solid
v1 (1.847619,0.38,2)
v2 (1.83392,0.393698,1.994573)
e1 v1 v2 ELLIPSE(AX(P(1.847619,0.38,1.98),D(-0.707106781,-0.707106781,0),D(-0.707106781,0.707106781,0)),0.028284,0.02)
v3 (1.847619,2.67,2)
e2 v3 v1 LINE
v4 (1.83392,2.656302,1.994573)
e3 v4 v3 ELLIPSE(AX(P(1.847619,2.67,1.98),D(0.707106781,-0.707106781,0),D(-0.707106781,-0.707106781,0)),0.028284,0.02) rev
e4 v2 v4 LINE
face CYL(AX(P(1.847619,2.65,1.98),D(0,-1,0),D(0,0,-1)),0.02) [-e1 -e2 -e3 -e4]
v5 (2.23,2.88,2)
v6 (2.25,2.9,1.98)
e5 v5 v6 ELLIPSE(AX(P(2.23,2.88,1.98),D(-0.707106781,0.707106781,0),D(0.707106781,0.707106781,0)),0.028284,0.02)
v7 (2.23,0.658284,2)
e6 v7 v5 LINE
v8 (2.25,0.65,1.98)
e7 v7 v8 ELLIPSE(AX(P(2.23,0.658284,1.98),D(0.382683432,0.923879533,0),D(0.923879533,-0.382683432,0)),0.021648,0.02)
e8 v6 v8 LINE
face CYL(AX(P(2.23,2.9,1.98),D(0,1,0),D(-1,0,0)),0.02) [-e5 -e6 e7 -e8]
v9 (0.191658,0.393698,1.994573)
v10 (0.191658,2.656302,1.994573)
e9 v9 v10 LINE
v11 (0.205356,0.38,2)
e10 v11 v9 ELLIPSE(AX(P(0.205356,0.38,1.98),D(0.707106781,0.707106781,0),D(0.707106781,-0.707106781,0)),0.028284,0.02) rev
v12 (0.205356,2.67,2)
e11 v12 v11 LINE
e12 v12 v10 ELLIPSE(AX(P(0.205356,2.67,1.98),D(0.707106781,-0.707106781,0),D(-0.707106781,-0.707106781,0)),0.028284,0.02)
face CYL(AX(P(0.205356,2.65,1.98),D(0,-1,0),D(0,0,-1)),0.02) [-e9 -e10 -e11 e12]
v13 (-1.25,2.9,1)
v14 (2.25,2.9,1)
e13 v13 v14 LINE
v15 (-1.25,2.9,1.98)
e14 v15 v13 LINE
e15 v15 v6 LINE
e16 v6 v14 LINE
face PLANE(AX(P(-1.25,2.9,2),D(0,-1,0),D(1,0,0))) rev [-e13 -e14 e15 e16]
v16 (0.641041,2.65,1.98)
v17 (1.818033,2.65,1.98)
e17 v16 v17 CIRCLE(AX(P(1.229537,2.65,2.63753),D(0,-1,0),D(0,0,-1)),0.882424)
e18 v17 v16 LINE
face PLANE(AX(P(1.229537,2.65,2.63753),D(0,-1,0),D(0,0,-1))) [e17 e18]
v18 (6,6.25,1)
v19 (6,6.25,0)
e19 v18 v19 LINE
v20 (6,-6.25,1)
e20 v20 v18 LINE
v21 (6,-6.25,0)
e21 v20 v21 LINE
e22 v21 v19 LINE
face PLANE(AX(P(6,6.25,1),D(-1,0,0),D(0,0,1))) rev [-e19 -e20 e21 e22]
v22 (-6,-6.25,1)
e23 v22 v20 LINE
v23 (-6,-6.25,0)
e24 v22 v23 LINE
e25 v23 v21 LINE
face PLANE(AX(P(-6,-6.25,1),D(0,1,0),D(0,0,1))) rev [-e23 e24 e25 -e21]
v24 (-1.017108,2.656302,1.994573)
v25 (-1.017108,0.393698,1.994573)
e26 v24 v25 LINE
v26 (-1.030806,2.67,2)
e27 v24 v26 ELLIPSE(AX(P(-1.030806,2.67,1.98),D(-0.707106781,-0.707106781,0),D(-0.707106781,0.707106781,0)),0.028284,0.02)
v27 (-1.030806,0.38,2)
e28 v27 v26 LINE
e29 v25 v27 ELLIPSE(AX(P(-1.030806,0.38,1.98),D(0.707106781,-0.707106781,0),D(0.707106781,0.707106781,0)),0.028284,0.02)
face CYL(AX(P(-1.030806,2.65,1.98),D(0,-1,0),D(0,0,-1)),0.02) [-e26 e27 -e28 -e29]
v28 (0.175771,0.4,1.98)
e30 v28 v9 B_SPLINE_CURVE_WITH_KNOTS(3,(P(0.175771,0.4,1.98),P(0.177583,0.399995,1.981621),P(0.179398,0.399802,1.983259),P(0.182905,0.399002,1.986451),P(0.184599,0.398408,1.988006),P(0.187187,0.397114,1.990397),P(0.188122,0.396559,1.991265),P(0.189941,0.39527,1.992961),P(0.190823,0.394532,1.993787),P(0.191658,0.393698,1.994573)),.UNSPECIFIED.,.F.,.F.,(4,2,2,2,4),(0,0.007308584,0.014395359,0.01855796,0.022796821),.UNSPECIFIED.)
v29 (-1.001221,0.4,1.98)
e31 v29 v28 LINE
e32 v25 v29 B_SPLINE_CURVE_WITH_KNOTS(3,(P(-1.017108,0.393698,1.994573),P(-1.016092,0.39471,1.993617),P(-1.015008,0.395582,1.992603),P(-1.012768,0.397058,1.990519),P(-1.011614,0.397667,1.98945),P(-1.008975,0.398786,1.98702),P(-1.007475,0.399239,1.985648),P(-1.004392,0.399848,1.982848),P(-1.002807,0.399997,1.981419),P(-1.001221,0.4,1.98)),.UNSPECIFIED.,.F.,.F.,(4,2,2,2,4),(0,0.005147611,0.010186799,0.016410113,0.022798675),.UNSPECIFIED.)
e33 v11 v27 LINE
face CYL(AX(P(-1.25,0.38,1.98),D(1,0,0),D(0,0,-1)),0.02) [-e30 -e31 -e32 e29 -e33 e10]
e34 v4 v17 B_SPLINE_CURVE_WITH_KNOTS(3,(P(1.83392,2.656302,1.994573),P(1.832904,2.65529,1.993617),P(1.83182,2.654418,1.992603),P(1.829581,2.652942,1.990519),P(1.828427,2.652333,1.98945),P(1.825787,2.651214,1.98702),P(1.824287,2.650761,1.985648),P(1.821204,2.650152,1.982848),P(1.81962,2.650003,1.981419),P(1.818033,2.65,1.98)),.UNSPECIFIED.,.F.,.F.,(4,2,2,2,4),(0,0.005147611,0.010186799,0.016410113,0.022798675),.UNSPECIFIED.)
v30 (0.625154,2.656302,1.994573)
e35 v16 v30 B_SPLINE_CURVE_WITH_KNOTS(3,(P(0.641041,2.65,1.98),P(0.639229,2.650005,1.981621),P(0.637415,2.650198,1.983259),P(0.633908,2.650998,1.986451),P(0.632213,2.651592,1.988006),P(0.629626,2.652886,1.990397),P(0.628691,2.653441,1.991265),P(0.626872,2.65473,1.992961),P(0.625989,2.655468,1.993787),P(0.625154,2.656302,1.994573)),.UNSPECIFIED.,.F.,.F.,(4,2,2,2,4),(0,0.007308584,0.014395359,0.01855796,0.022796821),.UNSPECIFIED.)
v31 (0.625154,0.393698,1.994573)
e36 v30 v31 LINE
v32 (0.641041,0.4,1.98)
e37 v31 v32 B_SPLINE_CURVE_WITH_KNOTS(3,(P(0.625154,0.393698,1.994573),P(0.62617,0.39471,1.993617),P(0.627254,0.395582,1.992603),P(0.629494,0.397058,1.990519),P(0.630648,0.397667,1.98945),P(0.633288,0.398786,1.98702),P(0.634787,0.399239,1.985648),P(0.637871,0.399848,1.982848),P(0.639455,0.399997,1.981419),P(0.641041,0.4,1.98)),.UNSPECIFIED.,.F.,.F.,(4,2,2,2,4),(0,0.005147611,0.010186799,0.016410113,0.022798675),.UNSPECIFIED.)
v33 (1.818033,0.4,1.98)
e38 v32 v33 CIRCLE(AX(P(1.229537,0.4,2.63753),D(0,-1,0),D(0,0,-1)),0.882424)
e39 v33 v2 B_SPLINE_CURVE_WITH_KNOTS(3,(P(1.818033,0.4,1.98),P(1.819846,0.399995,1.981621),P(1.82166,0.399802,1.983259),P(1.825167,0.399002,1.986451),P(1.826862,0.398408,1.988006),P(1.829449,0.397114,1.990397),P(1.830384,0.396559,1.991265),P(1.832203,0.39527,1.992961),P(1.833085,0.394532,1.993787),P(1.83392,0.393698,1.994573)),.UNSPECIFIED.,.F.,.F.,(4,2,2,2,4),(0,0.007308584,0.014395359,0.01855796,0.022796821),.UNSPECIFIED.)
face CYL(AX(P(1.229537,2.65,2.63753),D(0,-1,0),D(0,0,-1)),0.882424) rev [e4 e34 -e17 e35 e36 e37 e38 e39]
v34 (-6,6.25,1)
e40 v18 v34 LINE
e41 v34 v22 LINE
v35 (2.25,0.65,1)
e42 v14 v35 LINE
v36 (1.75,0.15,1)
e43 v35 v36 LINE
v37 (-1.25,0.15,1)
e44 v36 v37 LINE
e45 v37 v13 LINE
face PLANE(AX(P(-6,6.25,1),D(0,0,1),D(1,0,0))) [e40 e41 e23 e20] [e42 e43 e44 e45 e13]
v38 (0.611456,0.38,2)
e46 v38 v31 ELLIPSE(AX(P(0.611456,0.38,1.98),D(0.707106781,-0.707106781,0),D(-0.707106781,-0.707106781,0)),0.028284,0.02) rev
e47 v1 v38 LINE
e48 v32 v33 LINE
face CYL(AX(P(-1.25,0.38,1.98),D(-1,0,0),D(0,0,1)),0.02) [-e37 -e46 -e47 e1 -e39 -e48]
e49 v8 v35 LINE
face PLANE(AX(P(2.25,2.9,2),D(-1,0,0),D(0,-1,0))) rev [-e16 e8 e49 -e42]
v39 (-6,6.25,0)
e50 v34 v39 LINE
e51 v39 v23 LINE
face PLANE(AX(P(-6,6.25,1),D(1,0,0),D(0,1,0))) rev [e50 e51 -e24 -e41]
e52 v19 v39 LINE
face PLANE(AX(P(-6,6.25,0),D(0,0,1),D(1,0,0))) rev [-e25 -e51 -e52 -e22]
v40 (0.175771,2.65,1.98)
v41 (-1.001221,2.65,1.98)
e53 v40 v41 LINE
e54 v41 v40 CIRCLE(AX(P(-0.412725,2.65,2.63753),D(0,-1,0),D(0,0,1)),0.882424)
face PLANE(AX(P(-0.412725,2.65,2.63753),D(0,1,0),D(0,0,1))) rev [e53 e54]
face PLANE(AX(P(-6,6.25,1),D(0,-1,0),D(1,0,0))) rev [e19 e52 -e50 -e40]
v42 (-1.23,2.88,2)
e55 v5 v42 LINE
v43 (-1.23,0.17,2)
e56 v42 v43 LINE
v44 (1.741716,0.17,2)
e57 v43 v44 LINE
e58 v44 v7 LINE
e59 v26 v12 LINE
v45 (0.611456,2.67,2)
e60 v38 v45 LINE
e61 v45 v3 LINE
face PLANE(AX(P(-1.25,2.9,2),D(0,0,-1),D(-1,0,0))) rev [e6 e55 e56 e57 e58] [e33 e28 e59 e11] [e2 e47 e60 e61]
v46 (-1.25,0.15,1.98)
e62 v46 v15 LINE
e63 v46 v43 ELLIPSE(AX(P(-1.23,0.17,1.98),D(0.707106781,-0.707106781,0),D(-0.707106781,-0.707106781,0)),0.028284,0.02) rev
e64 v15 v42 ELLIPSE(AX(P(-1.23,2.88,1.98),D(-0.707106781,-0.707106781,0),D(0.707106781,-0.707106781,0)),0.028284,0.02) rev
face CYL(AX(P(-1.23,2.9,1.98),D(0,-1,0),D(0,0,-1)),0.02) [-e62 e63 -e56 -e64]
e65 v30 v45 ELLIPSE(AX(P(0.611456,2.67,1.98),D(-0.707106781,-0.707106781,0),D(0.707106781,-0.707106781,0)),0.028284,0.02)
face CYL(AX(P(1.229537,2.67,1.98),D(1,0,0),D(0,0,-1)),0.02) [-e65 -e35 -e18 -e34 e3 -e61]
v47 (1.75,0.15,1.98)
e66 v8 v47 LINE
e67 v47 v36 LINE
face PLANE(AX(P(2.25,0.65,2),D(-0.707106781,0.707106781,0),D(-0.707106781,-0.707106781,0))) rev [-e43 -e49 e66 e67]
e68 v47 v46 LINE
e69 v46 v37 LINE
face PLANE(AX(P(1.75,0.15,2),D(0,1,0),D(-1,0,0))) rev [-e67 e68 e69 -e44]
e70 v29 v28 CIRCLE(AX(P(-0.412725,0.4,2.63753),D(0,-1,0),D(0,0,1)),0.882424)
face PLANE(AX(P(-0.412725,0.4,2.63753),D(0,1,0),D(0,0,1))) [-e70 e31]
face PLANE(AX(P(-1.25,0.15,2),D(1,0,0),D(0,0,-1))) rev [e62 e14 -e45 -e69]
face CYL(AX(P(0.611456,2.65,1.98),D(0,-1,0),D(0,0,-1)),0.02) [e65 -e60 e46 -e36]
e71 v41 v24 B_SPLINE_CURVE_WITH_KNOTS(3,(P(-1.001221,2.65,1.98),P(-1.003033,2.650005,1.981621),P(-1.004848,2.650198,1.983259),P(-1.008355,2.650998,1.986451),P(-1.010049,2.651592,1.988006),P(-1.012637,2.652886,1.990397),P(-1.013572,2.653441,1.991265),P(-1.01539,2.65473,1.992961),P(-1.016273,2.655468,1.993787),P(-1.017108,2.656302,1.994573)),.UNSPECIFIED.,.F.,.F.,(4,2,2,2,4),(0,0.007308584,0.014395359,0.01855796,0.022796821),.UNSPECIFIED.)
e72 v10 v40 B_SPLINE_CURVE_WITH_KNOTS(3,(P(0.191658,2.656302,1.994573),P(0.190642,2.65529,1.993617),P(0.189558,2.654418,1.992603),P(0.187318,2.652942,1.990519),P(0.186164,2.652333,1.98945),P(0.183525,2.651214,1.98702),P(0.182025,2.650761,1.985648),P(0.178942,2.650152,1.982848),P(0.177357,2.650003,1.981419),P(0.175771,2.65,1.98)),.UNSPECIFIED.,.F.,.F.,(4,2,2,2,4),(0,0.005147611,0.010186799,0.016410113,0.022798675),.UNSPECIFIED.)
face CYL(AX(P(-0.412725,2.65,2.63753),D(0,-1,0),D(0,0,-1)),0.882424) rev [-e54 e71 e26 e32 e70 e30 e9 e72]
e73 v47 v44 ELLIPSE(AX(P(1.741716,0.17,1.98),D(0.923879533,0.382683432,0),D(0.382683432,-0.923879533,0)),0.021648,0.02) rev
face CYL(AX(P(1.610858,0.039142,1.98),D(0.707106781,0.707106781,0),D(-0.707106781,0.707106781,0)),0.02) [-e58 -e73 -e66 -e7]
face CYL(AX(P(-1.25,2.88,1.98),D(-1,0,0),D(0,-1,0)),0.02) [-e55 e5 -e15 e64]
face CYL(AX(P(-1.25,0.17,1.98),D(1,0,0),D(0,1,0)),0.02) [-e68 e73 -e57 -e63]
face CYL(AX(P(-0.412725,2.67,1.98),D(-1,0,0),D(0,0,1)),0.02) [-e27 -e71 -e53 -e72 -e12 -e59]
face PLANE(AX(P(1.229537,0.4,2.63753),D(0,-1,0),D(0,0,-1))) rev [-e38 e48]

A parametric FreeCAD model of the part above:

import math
import FreeCAD as App
import Part
import Sketcher

V = App.Vector
Q = App.Units.Quantity


def edges_at(feature, points):
    """Names of the edges that pass closest to the given points."""
    edges = feature.Shape.Edges
    near = lambda p: min(range(len(edges)), key=lambda i: edges[i].distToShape(Part.Vertex(*p))[0])
    return sorted({f"Edge{near(p) + 1}" for p in points})

doc = App.newDocument("Part")
body = doc.addObject("PartDesign::Body", "Body")

# Sketch on XY plane
sketch1 = body.newObject("Sketcher::SketchObject", "Sketch")
sketch1.AttachmentSupport = (doc.getObject("XY_Plane"), [""])
sketch1.MapMode = "FlatFace"
sketch1.addGeometry(Part.LineSegment(V(-6, 6, 0), V(-6, -6, 0)), False)
sketch1.addGeometry(Part.LineSegment(V(-6, -6, 0), V(6, -6, 0)), False)
sketch1.addGeometry(Part.LineSegment(V(6, -6, 0), V(6, 6, 0)), False)
sketch1.addGeometry(Part.LineSegment(V(6, 6, 0), V(-6, 6, 0)), False)
sketch1.addConstraint(Sketcher.Constraint("Coincident", 0, 2, 1, 1))
sketch1.addConstraint(Sketcher.Constraint("Coincident", 1, 2, 2, 1))
sketch1.addConstraint(Sketcher.Constraint("Coincident", 2, 2, 3, 1))
sketch1.addConstraint(Sketcher.Constraint("Coincident", 3, 2, 0, 1))
sketch1.addConstraint(Sketcher.Constraint("Vertical", 0))
sketch1.addConstraint(Sketcher.Constraint("Horizontal", 1))
sketch1.addConstraint(Sketcher.Constraint("Vertical", 2))
sketch1.addConstraint(Sketcher.Constraint("Horizontal", 3))
sketch1.addConstraint(Sketcher.Constraint("Symmetric", 0, 2, 2, 2, -1, 1))
sketch1.addConstraint(Sketcher.Constraint("DistanceX", 1, 1, 1, 2, 12.0))
sketch1.addConstraint(Sketcher.Constraint("DistanceY", 0, 2, 0, 1, 12.5))
pad1 = body.newObject("PartDesign::Pad", "Pad")
pad1.Profile = sketch1
pad1.Length = 1

# Sketch on XY plane
sketch2 = body.newObject("Sketcher::SketchObject", "Sketch001")
sketch2.AttachmentSupport = (doc.getObject("XY_Plane"), [""])
sketch2.MapMode = "FlatFace"
sketch2.addGeometry(Part.LineSegment(V(2.2, 2.9, 0), V(-1.2, 2.9, 0)), False)
sketch2.addGeometry(Part.LineSegment(V(-1.2, 2.9, 0), V(-1.2, 0.1, 0)), False)
sketch2.addGeometry(Part.LineSegment(V(-1.2, 0.1, 0), V(1.8, 0.1, 0)), False)
sketch2.addGeometry(Part.LineSegment(V(1.8, 0.1, 0), V(2.2, 0.7, 0)), False)
sketch2.addGeometry(Part.LineSegment(V(2.2, 0.7, 0), V(2.2, 2.9, 0)), False)
sketch2.addConstraint(Sketcher.Constraint("Coincident", 0, 2, 1, 1))
sketch2.addConstraint(Sketcher.Constraint("Coincident", 1, 2, 2, 1))
sketch2.addConstraint(Sketcher.Constraint("Coincident", 2, 2, 3, 1))
sketch2.addConstraint(Sketcher.Constraint("Coincident", 3, 2, 4, 1))
sketch2.addConstraint(Sketcher.Constraint("Coincident", 4, 2, 0, 1))
sketch2.addConstraint(Sketcher.Constraint("Horizontal", 0))
sketch2.addConstraint(Sketcher.Constraint("Vertical", 1))
sketch2.addConstraint(Sketcher.Constraint("Horizontal", 2))
sketch2.addConstraint(Sketcher.Constraint("Vertical", 4))
sketch2.addConstraint(Sketcher.Constraint("DistanceX", 2, 1, 2, 2, 3.0))
sketch2.addConstraint(Sketcher.Constraint("Angle", 3, Q("45 deg")))
sketch2.addConstraint(Sketcher.Constraint("DistanceX", 0, 2, 0, 1, 3.5))
sketch2.addConstraint(Sketcher.Constraint("DistanceY", 1, 2, 1, 1, 2.75))
sketch2.addConstraint(Sketcher.Constraint("DistanceY", -1, 1, 0, 2, 2.9))
sketch2.addConstraint(Sketcher.Constraint("DistanceX", 0, 2, -1, 1, 1.25))
pad2 = body.newObject("PartDesign::Pad", "Pad001")
pad2.Profile = sketch2
pad2.Length = 2

# Sketch on XZ plane
sketch3 = body.newObject("Sketcher::SketchObject", "Sketch002")
sketch3.AttachmentSupport = (doc.getObject("XZ_Plane"), [""])
sketch3.MapMode = "FlatFace"
sketch3.AttachmentOffset = App.Placement(V(0, 0, -0.4), App.Rotation())
sketch3.addGeometry(Part.LineSegment(V(1.8, 2, 0), V(0.6, 2, 0)), False)
sketch3.addGeometry(Part.ArcOfCircle(Part.Circle(V(1.2, 2.6, 0), V(0, 0, 1), 0.9), math.radians(-134), math.radians(-46)), False)
sketch3.addGeometry(Part.LineSegment(V(0.2, 2, 0), V(-1, 2, 0)), False)
sketch3.addGeometry(Part.ArcOfCircle(Part.Circle(V(-0.4, 2.6, 0), V(0, 0, 1), 0.9), math.radians(-134), math.radians(-46)), False)
sketch3.addConstraint(Sketcher.Constraint("Coincident", 0, 1, 1, 2))
sketch3.addConstraint(Sketcher.Constraint("Coincident", 1, 1, 0, 2))
sketch3.addConstraint(Sketcher.Constraint("Coincident", 2, 1, 3, 2))
sketch3.addConstraint(Sketcher.Constraint("Coincident", 3, 1, 2, 2))
sketch3.addConstraint(Sketcher.Constraint("Horizontal", 0))
sketch3.addConstraint(Sketcher.Constraint("Horizontal", 2))
sketch3.addConstraint(Sketcher.Constraint("Equal", 1, 3))
sketch3.addConstraint(Sketcher.Constraint("Horizontal", 1, 3, 3, 3))
sketch3.addConstraint(Sketcher.Constraint("Horizontal", 1, 1, 2, 1))
sketch3.addConstraint(Sketcher.Constraint("DistanceY", -1, 1, 0, 1, 2.0))
sketch3.addConstraint(Sketcher.Constraint("Radius", 1, 0.882424))
sketch3.addConstraint(Sketcher.Constraint("DistanceX", 0, 2, 0, 1, 1.220211))
sketch3.addConstraint(Sketcher.Constraint("DistanceX", -1, 1, 1, 1, 0.619432))
sketch3.addConstraint(Sketcher.Constraint("DistanceX", -1, 1, 2, 1, 0.197381))
pocket1 = body.newObject("PartDesign::Pocket", "Pocket")
pocket1.Profile = sketch3
pocket1.Length = 2.25
doc.recompute()

fillet = body.newObject("PartDesign::Fillet", "Fillet")
fillet.Base = (pocket1, edges_at(pocket1, [
    (0.5, 2.9, 2),
    (2.25, 1.775, 2),
    (2, 0.4, 2),
    (0.25, 0.15, 2),
    (-1.25, 1.525, 2),
    (1.23, 0.4, 2),
    (0.619, 1.525, 2),
    (1.23, 2.65, 2),
    (1.84, 1.525, 2),
    (-0.413, 0.4, 2),
    (-1.023, 1.525, 2),
    (-0.413, 2.65, 2),
    (0.197, 1.525, 2),
]))
fillet.Radius = 0.02

doc.recompute()
